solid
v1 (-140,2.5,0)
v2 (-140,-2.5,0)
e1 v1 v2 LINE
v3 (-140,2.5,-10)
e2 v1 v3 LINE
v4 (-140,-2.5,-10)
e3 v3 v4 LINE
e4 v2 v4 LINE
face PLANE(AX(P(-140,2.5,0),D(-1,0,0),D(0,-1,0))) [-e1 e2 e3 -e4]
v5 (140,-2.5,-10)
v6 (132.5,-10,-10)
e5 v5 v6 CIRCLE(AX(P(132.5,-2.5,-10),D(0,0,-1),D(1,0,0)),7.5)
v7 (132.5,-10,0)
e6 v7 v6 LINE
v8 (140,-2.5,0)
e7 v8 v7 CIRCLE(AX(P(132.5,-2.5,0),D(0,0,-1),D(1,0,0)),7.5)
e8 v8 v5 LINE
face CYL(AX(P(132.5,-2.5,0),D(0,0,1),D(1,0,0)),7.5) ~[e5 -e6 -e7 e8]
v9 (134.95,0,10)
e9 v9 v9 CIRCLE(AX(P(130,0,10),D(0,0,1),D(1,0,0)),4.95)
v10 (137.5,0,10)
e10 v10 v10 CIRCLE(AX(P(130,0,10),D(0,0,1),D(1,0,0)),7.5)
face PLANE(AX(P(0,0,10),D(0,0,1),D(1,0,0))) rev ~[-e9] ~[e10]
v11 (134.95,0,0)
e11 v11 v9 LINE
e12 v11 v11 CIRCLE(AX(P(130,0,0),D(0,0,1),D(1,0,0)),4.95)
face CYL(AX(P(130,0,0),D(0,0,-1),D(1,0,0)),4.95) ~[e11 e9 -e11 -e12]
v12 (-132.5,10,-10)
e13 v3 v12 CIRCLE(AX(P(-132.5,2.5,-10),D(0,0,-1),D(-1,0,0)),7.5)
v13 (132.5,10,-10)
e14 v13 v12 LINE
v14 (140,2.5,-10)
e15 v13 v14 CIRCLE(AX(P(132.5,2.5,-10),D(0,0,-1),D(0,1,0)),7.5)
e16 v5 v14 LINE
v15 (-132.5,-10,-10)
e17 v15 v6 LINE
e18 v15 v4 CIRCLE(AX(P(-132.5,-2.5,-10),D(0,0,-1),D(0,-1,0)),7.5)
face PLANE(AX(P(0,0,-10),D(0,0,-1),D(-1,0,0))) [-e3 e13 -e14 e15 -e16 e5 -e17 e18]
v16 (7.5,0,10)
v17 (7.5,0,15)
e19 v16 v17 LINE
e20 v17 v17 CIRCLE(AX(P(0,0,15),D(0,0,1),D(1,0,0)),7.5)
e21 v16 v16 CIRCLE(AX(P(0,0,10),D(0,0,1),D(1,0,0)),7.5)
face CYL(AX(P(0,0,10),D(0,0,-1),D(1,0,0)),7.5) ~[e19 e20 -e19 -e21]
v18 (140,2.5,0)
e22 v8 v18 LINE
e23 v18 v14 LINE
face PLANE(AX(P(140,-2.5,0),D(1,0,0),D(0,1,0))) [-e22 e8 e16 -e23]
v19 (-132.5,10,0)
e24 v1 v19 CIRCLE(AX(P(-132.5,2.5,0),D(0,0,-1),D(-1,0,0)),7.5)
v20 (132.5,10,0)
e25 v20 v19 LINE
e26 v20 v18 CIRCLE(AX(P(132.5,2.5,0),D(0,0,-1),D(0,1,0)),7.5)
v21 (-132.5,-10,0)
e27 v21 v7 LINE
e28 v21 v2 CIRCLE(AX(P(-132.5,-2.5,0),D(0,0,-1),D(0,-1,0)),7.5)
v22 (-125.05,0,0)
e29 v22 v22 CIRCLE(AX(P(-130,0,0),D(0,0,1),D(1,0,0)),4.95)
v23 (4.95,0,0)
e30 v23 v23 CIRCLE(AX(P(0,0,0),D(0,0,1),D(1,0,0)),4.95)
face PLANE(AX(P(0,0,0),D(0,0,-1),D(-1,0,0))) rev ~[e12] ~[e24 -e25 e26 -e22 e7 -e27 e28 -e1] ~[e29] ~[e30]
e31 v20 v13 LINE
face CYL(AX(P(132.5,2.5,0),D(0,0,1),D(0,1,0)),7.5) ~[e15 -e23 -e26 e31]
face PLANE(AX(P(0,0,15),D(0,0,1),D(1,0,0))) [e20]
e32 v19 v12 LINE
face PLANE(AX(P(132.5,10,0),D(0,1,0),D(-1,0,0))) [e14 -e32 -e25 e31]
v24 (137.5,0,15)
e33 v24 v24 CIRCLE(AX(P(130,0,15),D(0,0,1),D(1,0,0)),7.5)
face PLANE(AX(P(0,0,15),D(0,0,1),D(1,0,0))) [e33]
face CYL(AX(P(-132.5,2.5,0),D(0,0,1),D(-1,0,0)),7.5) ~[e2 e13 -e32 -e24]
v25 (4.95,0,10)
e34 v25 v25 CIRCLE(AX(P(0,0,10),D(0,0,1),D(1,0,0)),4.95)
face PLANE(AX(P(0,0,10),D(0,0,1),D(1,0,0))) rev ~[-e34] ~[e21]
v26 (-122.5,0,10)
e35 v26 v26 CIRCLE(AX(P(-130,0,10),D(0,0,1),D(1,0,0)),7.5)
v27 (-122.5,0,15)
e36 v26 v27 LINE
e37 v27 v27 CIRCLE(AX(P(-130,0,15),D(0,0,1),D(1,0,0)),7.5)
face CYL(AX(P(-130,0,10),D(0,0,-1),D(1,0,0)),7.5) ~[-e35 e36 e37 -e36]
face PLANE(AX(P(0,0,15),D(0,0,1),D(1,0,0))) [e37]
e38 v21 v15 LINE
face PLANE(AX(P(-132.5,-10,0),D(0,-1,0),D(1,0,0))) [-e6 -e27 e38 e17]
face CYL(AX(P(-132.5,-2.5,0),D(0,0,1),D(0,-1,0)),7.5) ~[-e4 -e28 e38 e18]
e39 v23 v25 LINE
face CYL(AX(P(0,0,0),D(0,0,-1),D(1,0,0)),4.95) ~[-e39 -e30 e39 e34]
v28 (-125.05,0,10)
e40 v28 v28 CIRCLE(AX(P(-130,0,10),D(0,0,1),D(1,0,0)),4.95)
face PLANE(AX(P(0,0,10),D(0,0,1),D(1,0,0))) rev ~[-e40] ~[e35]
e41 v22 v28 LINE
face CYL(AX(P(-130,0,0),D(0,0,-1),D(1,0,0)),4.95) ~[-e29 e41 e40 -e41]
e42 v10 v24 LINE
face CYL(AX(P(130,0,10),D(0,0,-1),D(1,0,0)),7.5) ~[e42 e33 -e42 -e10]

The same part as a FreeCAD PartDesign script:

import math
import FreeCAD as App
import Part
import Sketcher

V = App.Vector
Q = App.Units.Quantity

doc = App.newDocument("Part")
body = doc.addObject("PartDesign::Body", "Body")
body.AllowCompound = True

sketch1 = body.newObject("Sketcher::SketchObject", "Sketch")
sketch1.AttachmentSupport = (doc.getObject("XY_Plane"), [""])
sketch1.MapMode = "FlatFace"
sketch1.addGeometry(Part.Circle(V(0, 0, 0), V(0, 0, 1), 5), False)
sketch1.addGeometry(Part.Circle(V(-130, 0, 0), V(0, 0, 1), 5), False)
sketch1.addGeometry(Part.Circle(V(130, 0, 0), V(0, 0, 1), 5), False)
sketch1.addConstraint(Sketcher.Constraint("Coincident", 0, 3, -1, 1))
sketch1.addConstraint(Sketcher.Constraint("Equal", 0, 1))
sketch1.addConstraint(Sketcher.Constraint("Equal", 1, 2))
sketch1.addConstraint(Sketcher.Constraint("Symmetric", 1, 3, 2, 3, -1, 1))
sketch1.addConstraint(Sketcher.Constraint("PointOnObject", 1, 3, -1))
sketch1.addConstraint(Sketcher.Constraint("Diameter", 0, Q("9.9 mm")))
sketch1.addConstraint(Sketcher.Constraint("DistanceX", 1, 3, -1, 1, Q("130 mm")))
pad1 = body.newObject("PartDesign::Pad", "Pad")
pad1.Profile = sketch1
pad1.Length = 10

sketch2 = body.newObject("Sketcher::SketchObject", "Sketch001")
sketch2.AttachmentSupport = (doc.getObject("XY_Plane"), [""])
sketch2.MapMode = "FlatFace"
sketch2.addGeometry(Part.LineSegment(V(132, -10, 0), V(-132, -10, 0)), False)
sketch2.addGeometry(Part.ArcOfCircle(Part.Circle(V(-132, -2, 0), V(0, 0, 1), 8), math.radians(180), math.radians(270)), False)
sketch2.addGeometry(Part.LineSegment(V(-140, -2, 0), V(-140, 2, 0)), False)
sketch2.addGeometry(Part.ArcOfCircle(Part.Circle(V(-132, 2, 0), V(0, 0, 1), 8), math.radians(90), math.radians(180)), False)
sketch2.addGeometry(Part.LineSegment(V(-132, 10, 0), V(132, 10, 0)), False)
sketch2.addGeometry(Part.ArcOfCircle(Part.Circle(V(132, 2, 0), V(0, 0, 1), 8), math.radians(0), math.radians(90)), False)
sketch2.addGeometry(Part.LineSegment(V(140, 2, 0), V(140, -2, 0)), False)
sketch2.addGeometry(Part.ArcOfCircle(Part.Circle(V(132, -2, 0), V(0, 0, 1), 8), math.radians(-90), math.radians(0)), False)
sketch2.addConstraint(Sketcher.Constraint("Tangent", 0, 2, 1, 2))
sketch2.addConstraint(Sketcher.Constraint("Tangent", 1, 1, 2, 1))
sketch2.addConstraint(Sketcher.Constraint("Tangent", 2, 2, 3, 2))
sketch2.addConstraint(Sketcher.Constraint("Tangent", 3, 1, 4, 1))
sketch2.addConstraint(Sketcher.Constraint("Tangent", 4, 2, 5, 2))
sketch2.addConstraint(Sketcher.Constraint("Tangent", 5, 1, 6, 1))
sketch2.addConstraint(Sketcher.Constraint("Tangent", 6, 2, 7, 2))
sketch2.addConstraint(Sketcher.Constraint("Tangent", 7, 1, 0, 1))
sketch2.addConstraint(Sketcher.Constraint("Horizontal", 0))
sketch2.addConstraint(Sketcher.Constraint("Vertical", 2))
sketch2.addConstraint(Sketcher.Constraint("Horizontal", 4))
sketch2.addConstraint(Sketcher.Constraint("Vertical", 6))
sketch2.addConstraint(Sketcher.Constraint("Equal", 1, 3))
sketch2.addConstraint(Sketcher.Constraint("Equal", 3, 5))
sketch2.addConstraint(Sketcher.Constraint("Equal", 5, 7))
sketch2.addConstraint(Sketcher.Constraint("Symmetric", 1, 3, 5, 3, -1, 1))
sketch2.addConstraint(Sketcher.Constraint("Radius", 1, Q("7.5 mm")))
sketch2.addConstraint(Sketcher.Constraint("DistanceY", 0, 2, -1, 1, Q("10 mm")))
sketch2.addConstraint(Sketcher.Constraint("DistanceX", 1, 1, -1, 1, Q("140 mm")))
pad2 = body.newObject("PartDesign::Pad", "Pad001")
pad2.Profile = sketch2
pad2.Length = 10
pad2.Reversed = True

sketch3 = body.newObject("Sketcher::SketchObject", "Sketch002")
sketch3.AttachmentSupport = (doc.getObject("XY_Plane"), [""])
sketch3.MapMode = "FlatFace"
sketch3.AttachmentOffset = App.Placement(V(0, 0, 10), App.Rotation())
sketch3.addGeometry(Part.Circle(V(0, 0, 0), V(0, 0, 1), 8), False)
sketch3.addGeometry(Part.Circle(V(130, 0, 0), V(0, 0, 1), 8), False)
sketch3.addGeometry(Part.Circle(V(-130, 0, 0), V(0, 0, 1), 8), False)
sketch3.addConstraint(Sketcher.Constraint("Coincident", 0, 3, -1, 1))
sketch3.addConstraint(Sketcher.Constraint("Equal", 0, 1))
sketch3.addConstraint(Sketcher.Constraint("Equal", 1, 2))
sketch3.addConstraint(Sketcher.Constraint("Symmetric", 1, 3, 2, 3, -1, 1))
sketch3.addConstraint(Sketcher.Constraint("PointOnObject", 1, 3, -1))
sketch3.addConstraint(Sketcher.Constraint("Diameter", 0, Q("15 mm")))
sketch3.addConstraint(Sketcher.Constraint("DistanceX", -1, 1, 1, 3, Q("130 mm")))
pad3 = body.newObject("PartDesign::Pad", "Pad002")
pad3.Profile = sketch3
pad3.Length = 5

doc.recompute()
